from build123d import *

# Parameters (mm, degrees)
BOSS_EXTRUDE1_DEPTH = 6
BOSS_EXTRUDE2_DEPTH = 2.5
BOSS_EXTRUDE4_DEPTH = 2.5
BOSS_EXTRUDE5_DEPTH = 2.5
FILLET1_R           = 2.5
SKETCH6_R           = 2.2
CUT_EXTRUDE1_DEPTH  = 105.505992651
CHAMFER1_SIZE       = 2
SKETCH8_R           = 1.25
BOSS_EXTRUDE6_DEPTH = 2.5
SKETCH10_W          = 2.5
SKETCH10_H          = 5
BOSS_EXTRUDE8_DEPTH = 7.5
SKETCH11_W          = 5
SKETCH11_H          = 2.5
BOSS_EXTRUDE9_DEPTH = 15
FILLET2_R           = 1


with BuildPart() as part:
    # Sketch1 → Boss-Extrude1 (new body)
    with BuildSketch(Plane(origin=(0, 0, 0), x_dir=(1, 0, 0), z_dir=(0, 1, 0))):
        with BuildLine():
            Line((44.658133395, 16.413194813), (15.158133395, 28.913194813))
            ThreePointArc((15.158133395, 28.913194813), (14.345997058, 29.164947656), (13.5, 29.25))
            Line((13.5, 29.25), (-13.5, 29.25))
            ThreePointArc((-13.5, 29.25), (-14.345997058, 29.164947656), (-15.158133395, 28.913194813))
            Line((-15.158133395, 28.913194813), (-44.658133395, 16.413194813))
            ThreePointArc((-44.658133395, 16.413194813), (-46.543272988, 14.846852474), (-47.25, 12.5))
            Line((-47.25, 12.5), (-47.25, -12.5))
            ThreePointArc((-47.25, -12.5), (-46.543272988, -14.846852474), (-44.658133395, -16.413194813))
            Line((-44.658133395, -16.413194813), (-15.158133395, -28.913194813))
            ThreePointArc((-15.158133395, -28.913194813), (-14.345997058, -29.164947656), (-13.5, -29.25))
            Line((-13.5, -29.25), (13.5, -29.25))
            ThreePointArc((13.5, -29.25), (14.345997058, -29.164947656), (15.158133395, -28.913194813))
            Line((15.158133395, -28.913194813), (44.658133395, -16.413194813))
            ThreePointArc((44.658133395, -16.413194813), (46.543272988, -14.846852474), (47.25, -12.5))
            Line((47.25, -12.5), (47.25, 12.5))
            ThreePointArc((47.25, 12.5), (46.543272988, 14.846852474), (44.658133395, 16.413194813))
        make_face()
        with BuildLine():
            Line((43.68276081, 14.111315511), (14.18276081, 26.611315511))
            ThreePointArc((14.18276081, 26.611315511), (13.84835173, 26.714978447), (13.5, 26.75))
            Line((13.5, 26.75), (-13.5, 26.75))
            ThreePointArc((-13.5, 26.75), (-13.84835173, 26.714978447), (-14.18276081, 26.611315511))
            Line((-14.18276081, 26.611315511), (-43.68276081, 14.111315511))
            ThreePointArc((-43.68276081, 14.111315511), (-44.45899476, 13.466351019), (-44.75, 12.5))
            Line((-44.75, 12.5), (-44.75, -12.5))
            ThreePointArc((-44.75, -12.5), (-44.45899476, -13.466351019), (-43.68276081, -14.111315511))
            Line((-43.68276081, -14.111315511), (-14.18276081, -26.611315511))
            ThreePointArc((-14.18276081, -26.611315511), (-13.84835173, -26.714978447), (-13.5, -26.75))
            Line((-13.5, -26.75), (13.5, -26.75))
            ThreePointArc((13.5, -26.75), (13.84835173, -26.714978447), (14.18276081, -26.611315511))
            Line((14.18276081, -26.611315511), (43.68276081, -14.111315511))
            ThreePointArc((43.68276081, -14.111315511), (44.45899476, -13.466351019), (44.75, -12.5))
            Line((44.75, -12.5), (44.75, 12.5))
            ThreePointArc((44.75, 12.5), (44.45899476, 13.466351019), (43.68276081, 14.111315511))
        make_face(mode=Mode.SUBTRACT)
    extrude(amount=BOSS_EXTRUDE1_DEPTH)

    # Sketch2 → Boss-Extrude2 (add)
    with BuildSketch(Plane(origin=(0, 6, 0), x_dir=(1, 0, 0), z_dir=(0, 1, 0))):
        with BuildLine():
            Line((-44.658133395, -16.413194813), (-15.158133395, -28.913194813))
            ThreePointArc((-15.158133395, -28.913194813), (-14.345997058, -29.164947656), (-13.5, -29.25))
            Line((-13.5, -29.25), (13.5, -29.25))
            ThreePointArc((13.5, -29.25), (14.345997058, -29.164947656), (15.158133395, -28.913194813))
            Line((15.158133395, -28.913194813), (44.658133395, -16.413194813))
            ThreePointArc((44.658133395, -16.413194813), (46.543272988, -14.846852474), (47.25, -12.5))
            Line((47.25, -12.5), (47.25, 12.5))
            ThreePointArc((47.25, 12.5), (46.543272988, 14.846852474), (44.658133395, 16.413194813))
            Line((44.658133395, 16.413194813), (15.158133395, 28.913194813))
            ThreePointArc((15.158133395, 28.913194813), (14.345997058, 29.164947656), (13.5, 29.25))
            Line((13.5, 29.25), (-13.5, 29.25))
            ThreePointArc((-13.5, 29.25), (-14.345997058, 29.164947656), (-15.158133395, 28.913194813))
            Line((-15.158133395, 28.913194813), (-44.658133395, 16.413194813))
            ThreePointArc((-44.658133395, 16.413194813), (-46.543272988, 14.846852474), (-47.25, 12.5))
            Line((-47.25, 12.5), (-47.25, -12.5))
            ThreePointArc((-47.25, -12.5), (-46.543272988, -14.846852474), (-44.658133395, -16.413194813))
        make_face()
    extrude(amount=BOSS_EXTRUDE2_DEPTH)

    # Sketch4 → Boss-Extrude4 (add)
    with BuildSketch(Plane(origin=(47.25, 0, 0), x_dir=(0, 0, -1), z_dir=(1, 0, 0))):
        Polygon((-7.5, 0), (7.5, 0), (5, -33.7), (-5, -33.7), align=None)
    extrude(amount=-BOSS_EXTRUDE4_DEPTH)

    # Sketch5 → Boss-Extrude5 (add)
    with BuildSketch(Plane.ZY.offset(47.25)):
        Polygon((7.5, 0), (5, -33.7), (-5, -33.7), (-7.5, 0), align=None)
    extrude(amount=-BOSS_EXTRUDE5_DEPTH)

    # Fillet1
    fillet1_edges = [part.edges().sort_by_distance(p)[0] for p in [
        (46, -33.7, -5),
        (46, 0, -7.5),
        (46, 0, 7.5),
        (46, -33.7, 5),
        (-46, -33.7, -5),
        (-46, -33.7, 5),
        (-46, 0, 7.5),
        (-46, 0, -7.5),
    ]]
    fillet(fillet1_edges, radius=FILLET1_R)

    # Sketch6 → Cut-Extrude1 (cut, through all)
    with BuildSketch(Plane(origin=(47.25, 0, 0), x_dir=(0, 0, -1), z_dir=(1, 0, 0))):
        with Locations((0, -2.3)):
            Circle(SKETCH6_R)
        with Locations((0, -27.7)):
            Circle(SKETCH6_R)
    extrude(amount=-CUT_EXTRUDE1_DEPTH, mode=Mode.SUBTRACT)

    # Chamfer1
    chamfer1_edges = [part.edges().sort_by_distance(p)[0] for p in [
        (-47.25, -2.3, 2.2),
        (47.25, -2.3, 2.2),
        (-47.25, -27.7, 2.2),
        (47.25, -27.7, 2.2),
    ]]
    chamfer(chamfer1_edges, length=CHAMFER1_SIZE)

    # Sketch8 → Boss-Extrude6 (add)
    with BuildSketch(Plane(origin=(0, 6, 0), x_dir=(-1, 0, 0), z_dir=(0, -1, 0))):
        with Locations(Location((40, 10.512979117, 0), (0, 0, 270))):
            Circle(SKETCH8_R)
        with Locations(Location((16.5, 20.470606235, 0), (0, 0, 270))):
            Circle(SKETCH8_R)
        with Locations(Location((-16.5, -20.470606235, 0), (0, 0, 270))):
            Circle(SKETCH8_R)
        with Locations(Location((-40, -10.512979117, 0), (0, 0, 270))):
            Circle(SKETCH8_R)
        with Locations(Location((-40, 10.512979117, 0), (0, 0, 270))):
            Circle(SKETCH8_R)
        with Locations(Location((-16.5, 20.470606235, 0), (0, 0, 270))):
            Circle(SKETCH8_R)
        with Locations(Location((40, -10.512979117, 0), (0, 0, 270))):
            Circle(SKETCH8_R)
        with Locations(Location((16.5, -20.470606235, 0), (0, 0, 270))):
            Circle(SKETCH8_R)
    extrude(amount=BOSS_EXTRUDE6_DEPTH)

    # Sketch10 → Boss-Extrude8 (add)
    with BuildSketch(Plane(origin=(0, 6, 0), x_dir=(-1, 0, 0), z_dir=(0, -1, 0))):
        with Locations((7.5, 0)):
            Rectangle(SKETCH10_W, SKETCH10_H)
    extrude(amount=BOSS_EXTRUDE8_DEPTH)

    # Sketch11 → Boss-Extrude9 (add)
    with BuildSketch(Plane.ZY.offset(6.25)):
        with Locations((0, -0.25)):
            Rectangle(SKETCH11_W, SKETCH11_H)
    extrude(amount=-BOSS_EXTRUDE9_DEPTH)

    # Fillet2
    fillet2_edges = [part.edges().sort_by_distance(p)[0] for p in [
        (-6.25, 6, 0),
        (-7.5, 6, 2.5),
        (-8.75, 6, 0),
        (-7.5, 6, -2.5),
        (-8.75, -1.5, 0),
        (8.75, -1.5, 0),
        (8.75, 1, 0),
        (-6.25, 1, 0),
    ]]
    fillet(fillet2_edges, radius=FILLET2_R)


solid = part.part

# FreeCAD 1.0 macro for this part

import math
import FreeCAD as App
import Part
import Sketcher
from FreeCAD import Vector
Q = App.Units.Quantity


def edges_at(feature, points):
    """Names of the edges that pass closest to the given points."""
    edges = feature.Shape.Edges
    near = lambda p: min(range(len(edges)), key=lambda i: edges[i].distToShape(Part.Vertex(*p))[0])
    return sorted({f"Edge{near(p) + 1}" for p in points})


def add_polygon(sketch, points):
    """Adds a closed chain of lines whose ends are joined by coincident constraints."""
    first, n = sketch.GeometryCount, len(points)
    for a, b in zip(points, points[1:] + points[:1]):
        sketch.addGeometry(Part.LineSegment(App.Vector(*a, 0), App.Vector(*b, 0)), False)
    for i in range(n):
        sketch.addConstraint(Sketcher.Constraint("Coincident", first + i, 2, first + (i + 1) % n, 1))

doc = App.newDocument("Part")
params = doc.addObject("Spreadsheet::Sheet", "Params")
for row, (alias, value) in enumerate([
    ("sketch1_width", "27 mm"),
    ("sketch1_height", "25 mm"),
    ("sketch1_radius", "4.25 mm"),
    ("sketch1_radius2", "1.75 mm"),
    ("pad1_length", "6 mm"),
    ("sketch2_width", "27 mm"),
    ("sketch2_height", "25 mm"),
    ("sketch2_radius", "4.25 mm"),
    ("pad2_length", "2.5 mm"),
    ("sketch3_height", "15 mm"),
    ("sketch3_height2", "10 mm"),
    ("pad3_length", "2.5 mm"),
    ("sketch4_height", "15 mm"),
    ("sketch4_height2", "10 mm"),
    ("pad4_length", "2.5 mm"),
    ("fillet_radius", "2.5 mm"),
    ("sketch5_diameter", "4.4 mm"),
    ("chamfer_size", "2 mm"),
    ("sketch6_diameter", "2.5 mm"),
    ("pad5_length", "2.5 mm"),
    ("sketch7_height", "5 mm"),
    ("sketch7_width", "2.5 mm"),
    ("pad6_length", "7.5 mm"),
    ("sketch8_height", "5 mm"),
    ("sketch8_width", "2.5 mm"),
    ("pad7_length", "15 mm"),
    ("fillet2_radius", "1 mm"),
], start=1):
    params.set(f"A{row}", alias)
    params.set(f"B{row}", "=" + value)
    params.setAlias(f"B{row}", alias)

body = doc.addObject("PartDesign::Body", "Body")

sketch1 = body.newObject("Sketcher::SketchObject", "Sketch")
sketch1.AttachmentSupport = (doc.getObject("XZ_Plane"), [""])
sketch1.MapMode = "FlatFace"
sketch1.addGeometry([
    Part.LineSegment(Vector(44.658133, -16.413195, 0), Vector(15.158133, -28.913195, 0)),
    Part.ArcOfCircle(Part.Circle(Vector(13.5, -25, 0), Vector(0, 0, 1), 4.25), math.radians(-90), math.radians(-67.036227)),
    Part.LineSegment(Vector(13.5, -29.25, 0), Vector(-13.5, -29.25, 0)),
    Part.ArcOfCircle(Part.Circle(Vector(-13.5, -25, 0), Vector(0, 0, 1), 4.25), math.radians(-112.963773), math.radians(-90)),
    Part.LineSegment(Vector(-15.158133, -28.913195, 0), Vector(-44.658133, -16.413195, 0)),
    Part.ArcOfCircle(Part.Circle(Vector(-43, -12.5, 0), Vector(0, 0, 1), 4.25), math.radians(180), math.radians(247.036227)),
    Part.LineSegment(Vector(-47.25, -12.5, 0), Vector(-47.25, 12.5, 0)),
    Part.ArcOfCircle(Part.Circle(Vector(-43, 12.5, 0), Vector(0, 0, 1), 4.25), math.radians(112.963773), math.radians(180)),
    Part.LineSegment(Vector(-44.658133, 16.413195, 0), Vector(-15.158133, 28.913195, 0)),
    Part.ArcOfCircle(Part.Circle(Vector(-13.5, 25, 0), Vector(0, 0, 1), 4.25), math.radians(90), math.radians(112.963773)),
    Part.LineSegment(Vector(-13.5, 29.25, 0), Vector(13.5, 29.25, 0)),
    Part.ArcOfCircle(Part.Circle(Vector(13.5, 25, 0), Vector(0, 0, 1), 4.25), math.radians(67.036227), math.radians(90)),
    Part.LineSegment(Vector(15.158133, 28.913195, 0), Vector(44.658133, 16.413195, 0)),
    Part.ArcOfCircle(Part.Circle(Vector(43, 12.5, 0), Vector(0, 0, 1), 4.25), math.radians(0), math.radians(67.036227)),
    Part.LineSegment(Vector(47.25, 12.5, 0), Vector(47.25, -12.5, 0)),
    Part.ArcOfCircle(Part.Circle(Vector(43, -12.5, 0), Vector(0, 0, 1), 4.25), math.radians(-67.036227), math.radians(0)),
    Part.LineSegment(Vector(14.182761, -26.611316, 0), Vector(43.682761, -14.111316, 0)),
    Part.ArcOfCircle(Part.Circle(Vector(43, -12.5, 0), Vector(0, 0, 1), 1.75), math.radians(-67.036227), math.radians(0)),
    Part.LineSegment(Vector(44.75, -12.5, 0), Vector(44.75, 12.5, 0)),
    Part.ArcOfCircle(Part.Circle(Vector(43, 12.5, 0), Vector(0, 0, 1), 1.75), math.radians(0), math.radians(67.036227)),
    Part.LineSegment(Vector(43.682761, 14.111316, 0), Vector(14.182761, 26.611316, 0)),
    Part.ArcOfCircle(Part.Circle(Vector(13.5, 25, 0), Vector(0, 0, 1), 1.75), math.radians(67.036227), math.radians(90)),
    Part.LineSegment(Vector(13.5, 26.75, 0), Vector(-13.5, 26.75, 0)),
    Part.ArcOfCircle(Part.Circle(Vector(-13.5, 25, 0), Vector(0, 0, 1), 1.75), math.radians(90), math.radians(112.963773)),
    Part.LineSegment(Vector(-14.182761, 26.611316, 0), Vector(-43.682761, 14.111316, 0)),
    Part.ArcOfCircle(Part.Circle(Vector(-43, 12.5, 0), Vector(0, 0, 1), 1.75), math.radians(112.963773), math.radians(180)),
    Part.LineSegment(Vector(-44.75, 12.5, 0), Vector(-44.75, -12.5, 0)),
    Part.ArcOfCircle(Part.Circle(Vector(-43, -12.5, 0), Vector(0, 0, 1), 1.75), math.radians(180), math.radians(247.036227)),
    Part.LineSegment(Vector(-43.682761, -14.111316, 0), Vector(-14.182761, -26.611316, 0)),
    Part.ArcOfCircle(Part.Circle(Vector(-13.5, -25, 0), Vector(0, 0, 1), 1.75), math.radians(-112.963773), math.radians(-90)),
    Part.LineSegment(Vector(-13.5, -26.75, 0), Vector(13.5, -26.75, 0)),
    Part.ArcOfCircle(Part.Circle(Vector(13.5, -25, 0), Vector(0, 0, 1), 1.75), math.radians(-90), math.radians(-67.036227)),
], False)
sketch1.addConstraint([
    Sketcher.Constraint("Tangent", 0, 2, 1, 2),
    Sketcher.Constraint("Tangent", 1, 1, 2, 1),
    Sketcher.Constraint("Tangent", 2, 2, 3, 2),
    Sketcher.Constraint("Tangent", 3, 1, 4, 1),
    Sketcher.Constraint("Tangent", 4, 2, 5, 2),
    Sketcher.Constraint("Tangent", 5, 1, 6, 1),
    Sketcher.Constraint("Tangent", 6, 2, 7, 2),
    Sketcher.Constraint("Tangent", 7, 1, 8, 1),
    Sketcher.Constraint("Tangent", 8, 2, 9, 2),
    Sketcher.Constraint("Tangent", 9, 1, 10, 1),
    Sketcher.Constraint("Tangent", 10, 2, 11, 2),
    Sketcher.Constraint("Tangent", 11, 1, 12, 1),
    Sketcher.Constraint("Tangent", 12, 2, 13, 2),
    Sketcher.Constraint("Tangent", 13, 1, 14, 1),
    Sketcher.Constraint("Tangent", 14, 2, 15, 2),
    Sketcher.Constraint("Tangent", 15, 1, 0, 1),
    Sketcher.Constraint("Tangent", 16, 2, 17, 1),
    Sketcher.Constraint("Tangent", 17, 2, 18, 1),
    Sketcher.Constraint("Tangent", 18, 2, 19, 1),
    Sketcher.Constraint("Tangent", 19, 2, 20, 1),
    Sketcher.Constraint("Tangent", 20, 2, 21, 1),
    Sketcher.Constraint("Tangent", 21, 2, 22, 1),
    Sketcher.Constraint("Tangent", 22, 2, 23, 1),
    Sketcher.Constraint("Tangent", 23, 2, 24, 1),
    Sketcher.Constraint("Tangent", 24, 2, 25, 1),
    Sketcher.Constraint("Tangent", 25, 2, 26, 1),
    Sketcher.Constraint("Tangent", 26, 2, 27, 1),
    Sketcher.Constraint("Tangent", 27, 2, 28, 1),
    Sketcher.Constraint("Tangent", 28, 2, 29, 1),
    Sketcher.Constraint("Tangent", 29, 2, 30, 1),
    Sketcher.Constraint("Tangent", 30, 2, 31, 1),
    Sketcher.Constraint("Tangent", 31, 2, 16, 1),
    Sketcher.Constraint("Horizontal", 2),
    Sketcher.Constraint("Vertical", 6),
    Sketcher.Constraint("Horizontal", 10),
    Sketcher.Constraint("Vertical", 14),
    Sketcher.Constraint("Vertical", 18),
    Sketcher.Constraint("Horizontal", 22),
    Sketcher.Constraint("Vertical", 26),
    Sketcher.Constraint("Horizontal", 30),
    Sketcher.Constraint("Coincident", 17, 3, 15, 3),
    Sketcher.Constraint("Coincident", 19, 3, 13, 3),
    Sketcher.Constraint("Coincident", 21, 3, 11, 3),
    Sketcher.Constraint("Coincident", 23, 3, 9, 3),
    Sketcher.Constraint("Coincident", 25, 3, 7, 3),
    Sketcher.Constraint("Coincident", 27, 3, 5, 3),
    Sketcher.Constraint("Coincident", 29, 3, 3, 3),
    Sketcher.Constraint("Coincident", 31, 3, 1, 3),
    Sketcher.Constraint("Equal", 1, 3),
    Sketcher.Constraint("Equal", 3, 5),
    Sketcher.Constraint("Equal", 5, 7),
    Sketcher.Constraint("Equal", 7, 9),
    Sketcher.Constraint("Equal", 9, 11),
    Sketcher.Constraint("Equal", 11, 13),
    Sketcher.Constraint("Equal", 13, 15),
    Sketcher.Constraint("Equal", 19, 21),
    Sketcher.Constraint("Equal", 23, 25),
    Sketcher.Constraint("Equal", 27, 29),
    Sketcher.Constraint("Symmetric", 1, 3, 9, 3, -1, 1),
    Sketcher.Constraint("Symmetric", 5, 3, 13, 3, -1, 1),
    Sketcher.Constraint("Symmetric", 0, 2, 3, 1, -2),
    Sketcher.Constraint("Symmetric", 8, 2, 11, 1, -2),
    Sketcher.Constraint("DistanceX", 2, 2, 2, 1, Q("27 mm")),
    Sketcher.Constraint("DistanceY", 6, 1, 6, 2, Q("25 mm")),
    Sketcher.Constraint("Radius", 1, Q("4.25 mm")),
    Sketcher.Constraint("Radius", 17, Q("1.75 mm")),
    Sketcher.Constraint("DistanceY", 1, 3, -1, 1, Q("25 mm")),
    Sketcher.Constraint("DistanceX", 5, 3, -1, 1, Q("43 mm")),
])
sketch1.setExpression("Constraints[62]", "Params.sketch1_width")
sketch1.setExpression("Constraints[63]", "Params.sketch1_height")
sketch1.setExpression("Constraints[64]", "Params.sketch1_radius")
sketch1.setExpression("Constraints[65]", "Params.sketch1_radius2")
pad1 = body.newObject("PartDesign::Pad", "Pad")
pad1.Profile = sketch1
pad1.setExpression("Length", "Params.pad1_length")
pad1.Reversed = True

sketch2 = body.newObject("Sketcher::SketchObject", "Sketch001")
sketch2.AttachmentSupport = (doc.getObject("XZ_Plane"), [""])
sketch2.MapMode = "FlatFace"
sketch2.AttachmentOffset = App.Placement(Vector(0, 0, -6), App.Rotation())
sketch2.addGeometry([
    Part.LineSegment(Vector(-44.658133, 16.413195, 0), Vector(-15.158133, 28.913195, 0)),
    Part.ArcOfCircle(Part.Circle(Vector(-13.5, 25, 0), Vector(0, 0, 1), 4.25), math.radians(90), math.radians(112.963773)),
    Part.LineSegment(Vector(-13.5, 29.25, 0), Vector(13.5, 29.25, 0)),
    Part.ArcOfCircle(Part.Circle(Vector(13.5, 25, 0), Vector(0, 0, 1), 4.25), math.radians(67.036227), math.radians(90)),
    Part.LineSegment(Vector(15.158133, 28.913195, 0), Vector(44.658133, 16.413195, 0)),
    Part.ArcOfCircle(Part.Circle(Vector(43, 12.5, 0), Vector(0, 0, 1), 4.25), math.radians(0), math.radians(67.036227)),
    Part.LineSegment(Vector(47.25, 12.5, 0), Vector(47.25, -12.5, 0)),
    Part.ArcOfCircle(Part.Circle(Vector(43, -12.5, 0), Vector(0, 0, 1), 4.25), math.radians(-67.036227), math.radians(0)),
    Part.LineSegment(Vector(44.658133, -16.413195, 0), Vector(15.158133, -28.913195, 0)),
    Part.ArcOfCircle(Part.Circle(Vector(13.5, -25, 0), Vector(0, 0, 1), 4.25), math.radians(-90), math.radians(-67.036227)),
    Part.LineSegment(Vector(13.5, -29.25, 0), Vector(-13.5, -29.25, 0)),
    Part.ArcOfCircle(Part.Circle(Vector(-13.5, -25, 0), Vector(0, 0, 1), 4.25), math.radians(-112.963773), math.radians(-90)),
    Part.LineSegment(Vector(-15.158133, -28.913195, 0), Vector(-44.658133, -16.413195, 0)),
    Part.ArcOfCircle(Part.Circle(Vector(-43, -12.5, 0), Vector(0, 0, 1), 4.25), math.radians(180), math.radians(247.036227)),
    Part.LineSegment(Vector(-47.25, -12.5, 0), Vector(-47.25, 12.5, 0)),
    Part.ArcOfCircle(Part.Circle(Vector(-43, 12.5, 0), Vector(0, 0, 1), 4.25), math.radians(112.963773), math.radians(180)),
], False)
sketch2.addConstraint([
    Sketcher.Constraint("Tangent", 0, 2, 1, 2),
    Sketcher.Constraint("Tangent", 1, 1, 2, 1),
    Sketcher.Constraint("Tangent", 2, 2, 3, 2),
    Sketcher.Constraint("Tangent", 3, 1, 4, 1),
    Sketcher.Constraint("Tangent", 4, 2, 5, 2),
    Sketcher.Constraint("Tangent", 5, 1, 6, 1),
    Sketcher.Constraint("Tangent", 6, 2, 7, 2),
    Sketcher.Constraint("Tangent", 7, 1, 8, 1),
    Sketcher.Constraint("Tangent", 8, 2, 9, 2),
    Sketcher.Constraint("Tangent", 9, 1, 10, 1),
    Sketcher.Constraint("Tangent", 10, 2, 11, 2),
    Sketcher.Constraint("Tangent", 11, 1, 12, 1),
    Sketcher.Constraint("Tangent", 12, 2, 13, 2),
    Sketcher.Constraint("Tangent", 13, 1, 14, 1),
    Sketcher.Constraint("Tangent", 14, 2, 15, 2),
    Sketcher.Constraint("Tangent", 15, 1, 0, 1),
    Sketcher.Constraint("Horizontal", 2),
    Sketcher.Constraint("Vertical", 6),
    Sketcher.Constraint("Horizontal", 10),
    Sketcher.Constraint("Vertical", 14),
    Sketcher.Constraint("Equal", 1, 3),
    Sketcher.Constraint("Equal", 3, 5),
    Sketcher.Constraint("Equal", 5, 7),
    Sketcher.Constraint("Equal", 7, 9),
    Sketcher.Constraint("Equal", 9, 11),
    Sketcher.Constraint("Equal", 11, 13),
    Sketcher.Constraint("Equal", 13, 15),
    Sketcher.Constraint("Symmetric", 1, 3, 9, 3, -1, 1),
    Sketcher.Constraint("Symmetric", 5, 3, 13, 3, -1, 1),
    Sketcher.Constraint("Symmetric", 0, 2, 3, 1, -2),
    Sketcher.Constraint("Symmetric", 8, 2, 11, 1, -2),
    Sketcher.Constraint("DistanceX", 2, 1, 2, 2, Q("27 mm")),
    Sketcher.Constraint("DistanceY", 6, 2, 6, 1, Q("25 mm")),
    Sketcher.Constraint("Radius", 1, Q("4.25 mm")),
    Sketcher.Constraint("DistanceY", -1, 1, 1, 3, Q("25 mm")),
    Sketcher.Constraint("DistanceX", -1, 1, 5, 3, Q("43 mm")),
])
sketch2.setExpression("Constraints[31]", "Params.sketch2_width")
sketch2.setExpression("Constraints[32]", "Params.sketch2_height")
sketch2.setExpression("Constraints[33]", "Params.sketch2_radius")
pad2 = body.newObject("PartDesign::Pad", "Pad001")
pad2.Profile = sketch2
pad2.setExpression("Length", "Params.pad2_length")
pad2.Reversed = True

sketch3 = body.newObject("Sketcher::SketchObject", "Sketch002")
sketch3.AttachmentSupport = (doc.getObject("YZ_Plane"), [""])
sketch3.MapMode = "FlatFace"
sketch3.AttachmentOffset = App.Placement(Vector(0, 0, 47.25), App.Rotation())
add_polygon(sketch3, [(0, -7.5), (0, 7.5), (-33.7, 5), (-33.7, -5)])
sketch3.addConstraint([
    Sketcher.Constraint("Vertical", 0),
    Sketcher.Constraint("Vertical", 2),
    Sketcher.Constraint("Symmetric", 0, 2, 3, 2, -1, 1),
    Sketcher.Constraint("Equal", 1, 3),
    Sketcher.Constraint("DistanceY", 0, 1, 0, 2, Q("15 mm")),
    Sketcher.Constraint("DistanceY", 2, 2, 2, 1, Q("10 mm")),
    Sketcher.Constraint("DistanceX", 1, 2, -1, 1, Q("33.7 mm")),
])
sketch3.setExpression("Constraints[8]", "Params.sketch3_height")
sketch3.setExpression("Constraints[9]", "Params.sketch3_height2")
pad3 = body.newObject("PartDesign::Pad", "Pad002")
pad3.Profile = sketch3
pad3.setExpression("Length", "Params.pad3_length")
pad3.Reversed = True

sketch4 = body.newObject("Sketcher::SketchObject", "Sketch003")
sketch4.AttachmentSupport = (doc.getObject("YZ_Plane"), [""])
sketch4.MapMode = "FlatFace"
sketch4.AttachmentOffset = App.Placement(Vector(0, 0, -47.25), App.Rotation())
add_polygon(sketch4, [(-33.7, 5), (0, 7.5), (0, -7.5), (-33.7, -5)])
sketch4.addConstraint([
    Sketcher.Constraint("Vertical", 1),
    Sketcher.Constraint("Vertical", 3),
    Sketcher.Constraint("Symmetric", 0, 2, 1, 2, -1, 1),
    Sketcher.Constraint("Equal", 0, 2),
    Sketcher.Constraint("DistanceY", 1, 2, 1, 1, Q("15 mm")),
    Sketcher.Constraint("DistanceY", 3, 1, 3, 2, Q("10 mm")),
    Sketcher.Constraint("DistanceX", 2, 2, -1, 1, Q("33.7 mm")),
])
sketch4.setExpression("Constraints[8]", "Params.sketch4_height")
sketch4.setExpression("Constraints[9]", "Params.sketch4_height2")
pad4 = body.newObject("PartDesign::Pad", "Pad003")
pad4.Profile = sketch4
pad4.setExpression("Length", "Params.pad4_length")
doc.recompute()

fillet = body.newObject("PartDesign::Fillet", "Fillet")
fillet.Base = (pad4, edges_at(pad4, [
    (46, -33.7, -5),
    (46, 0, -7.5),
    (46, 0, 7.5),
    (46, -33.7, 5),
    (-46, -33.7, -5),
    (-46, -33.7, 5),
    (-46, 0, 7.5),
    (-46, 0, -7.5),
]))
fillet.setExpression("Radius", "Params.fillet_radius")

sketch5 = body.newObject("Sketcher::SketchObject", "Sketch004")
sketch5.AttachmentSupport = (doc.getObject("YZ_Plane"), [""])
sketch5.MapMode = "FlatFace"
sketch5.AttachmentOffset = App.Placement(Vector(0, 0, 47.25), App.Rotation())
sketch5.addGeometry([
    Part.Circle(Vector(-2.3, 0, 0), Vector(0, 0, 1), 2.2),
    Part.Circle(Vector(-27.7, 0, 0), Vector(0, 0, 1), 2.2),
], False)
sketch5.addConstraint([
    Sketcher.Constraint("Equal", 0, 1),
    Sketcher.Constraint("PointOnObject", 0, 3, -1),
    Sketcher.Constraint("PointOnObject", 1, 3, -1),
    Sketcher.Constraint("Diameter", 0, Q("4.4 mm")),
    Sketcher.Constraint("DistanceX", 0, 3, -1, 1, Q("2.3 mm")),
    Sketcher.Constraint("DistanceX", 1, 3, -1, 1, Q("27.7 mm")),
])
sketch5.setExpression("Constraints[3]", "Params.sketch5_diameter")
pocket1 = body.newObject("PartDesign::Pocket", "Pocket")
pocket1.Profile = sketch5
pocket1.Type = "ThroughAll"
doc.recompute()

chamfer = body.newObject("PartDesign::Chamfer", "Chamfer")
chamfer.Base = (pocket1, edges_at(pocket1, [
    (-47.25, -2.3, 2.2),
    (47.25, -2.3, 2.2),
    (-47.25, -27.7, 2.2),
    (47.25, -27.7, 2.2),
]))
chamfer.setExpression("Size", "Params.chamfer_size")

sketch6 = body.newObject("Sketcher::SketchObject", "Sketch005")
sketch6.AttachmentSupport = (doc.getObject("XZ_Plane"), [""])
sketch6.MapMode = "FlatFace"
sketch6.AttachmentOffset = App.Placement(Vector(0, 0, -6), App.Rotation())
sketch6.addGeometry([
    Part.Circle(Vector(-40, -10.512979, 0), Vector(0, 0, 1), 1.25),
    Part.Circle(Vector(-16.5, -20.470606, 0), Vector(0, 0, 1), 1.25),
    Part.Circle(Vector(16.5, 20.470606, 0), Vector(0, 0, 1), 1.25),
    Part.Circle(Vector(40, 10.512979, 0), Vector(0, 0, 1), 1.25),
    Part.Circle(Vector(40, -10.512979, 0), Vector(0, 0, 1), 1.25),
    Part.Circle(Vector(16.5, -20.470606, 0), Vector(0, 0, 1), 1.25),
    Part.Circle(Vector(-40, 10.512979, 0), Vector(0, 0, 1), 1.25),
    Part.Circle(Vector(-16.5, 20.470606, 0), Vector(0, 0, 1), 1.25),
], False)
sketch6.addConstraint([
    Sketcher.Constraint("Equal", 0, 1),
    Sketcher.Constraint("Equal", 1, 2),
    Sketcher.Constraint("Equal", 2, 3),
    Sketcher.Constraint("Equal", 3, 4),
    Sketcher.Constraint("Equal", 4, 5),
    Sketcher.Constraint("Equal", 5, 6),
    Sketcher.Constraint("Equal", 6, 7),
    Sketcher.Constraint("Symmetric", 1, 3, 2, 3, -1, 1),
    Sketcher.Constraint("Symmetric", 0, 3, 3, 3, -1, 1),
    Sketcher.Constraint("Symmetric", 4, 3, 6, 3, -1, 1),
    Sketcher.Constraint("Symmetric", 5, 3, 7, 3, -1, 1),
    Sketcher.Constraint("Symmetric", 0, 3, 4, 3, -2),
    Sketcher.Constraint("Symmetric", 1, 3, 5, 3, -2),
    Sketcher.Constraint("Diameter", 0, Q("2.5 mm")),
    Sketcher.Constraint("DistanceX", 0, 3, -1, 1, Q("40 mm")),
    Sketcher.Constraint("DistanceX", 1, 3, 2, 3, Q("33 mm")),
    Sketcher.Constraint("DistanceY", 0, 3, -1, 1, Q("10.512979 mm")),
    Sketcher.Constraint("DistanceY", 1, 3, -1, 1, Q("20.470606 mm")),
])
sketch6.setExpression("Constraints[13]", "Params.sketch6_diameter")
pad5 = body.newObject("PartDesign::Pad", "Pad004")
pad5.Profile = sketch6
pad5.setExpression("Length", "Params.pad5_length")

sketch7 = body.newObject("Sketcher::SketchObject", "Sketch006")
sketch7.AttachmentSupport = (doc.getObject("XZ_Plane"), [""])
sketch7.MapMode = "FlatFace"
sketch7.AttachmentOffset = App.Placement(Vector(0, 0, -6), App.Rotation())
add_polygon(sketch7, [(-6.25, -2.5), (-6.25, 2.5), (-8.75, 2.5), (-8.75, -2.5)])
sketch7.addConstraint([
    Sketcher.Constraint("Vertical", 0),
    Sketcher.Constraint("Horizontal", 1),
    Sketcher.Constraint("Vertical", 2),
    Sketcher.Constraint("Horizontal", 3),
    Sketcher.Constraint("DistanceY", 0, 1, 0, 2, Q("5 mm")),
    Sketcher.Constraint("DistanceX", 1, 2, 1, 1, Q("2.5 mm")),
    Sketcher.Constraint("DistanceY", -1, 1, 0, 2, Q("2.5 mm")),
    Sketcher.Constraint("DistanceX", 0, 2, -1, 1, Q("6.25 mm")),
])
sketch7.setExpression("Constraints[8]", "Params.sketch7_height")
sketch7.setExpression("Constraints[9]", "Params.sketch7_width")
pad6 = body.newObject("PartDesign::Pad", "Pad005")
pad6.Profile = sketch7
pad6.setExpression("Length", "Params.pad6_length")

sketch8 = body.newObject("Sketcher::SketchObject", "Sketch007")
sketch8.AttachmentSupport = (doc.getObject("YZ_Plane"), [""])
sketch8.MapMode = "FlatFace"
sketch8.AttachmentOffset = App.Placement(Vector(0, 0, -6.25), App.Rotation())
add_polygon(sketch8, [(1, -2.5), (-1.5, -2.5), (-1.5, 2.5), (1, 2.5)])
sketch8.addConstraint([
    Sketcher.Constraint("Horizontal", 0),
    Sketcher.Constraint("Vertical", 1),
    Sketcher.Constraint("Horizontal", 2),
    Sketcher.Constraint("Vertical", 3),
    Sketcher.Constraint("DistanceY", 1, 1, 1, 2, Q("5 mm")),
    Sketcher.Constraint("DistanceX", 0, 2, 0, 1, Q("2.5 mm")),
    Sketcher.Constraint("DistanceX", -1, 1, 2, 2, Q("1 mm")),
    Sketcher.Constraint("DistanceY", 0, 2, -1, 1, Q("2.5 mm")),
])
sketch8.setExpression("Constraints[8]", "Params.sketch8_height")
sketch8.setExpression("Constraints[9]", "Params.sketch8_width")
pad7 = body.newObject("PartDesign::Pad", "Pad006")
pad7.Profile = sketch8
pad7.setExpression("Length", "Params.pad7_length")
doc.recompute()

fillet2 = body.newObject("PartDesign::Fillet", "Fillet001")
fillet2.Base = (pad7, edges_at(pad7, [
    (-6.25, 6, 0),
    (-7.5, 6, 2.5),
    (-8.75, 6, 0),
    (-7.5, 6, -2.5),
    (-8.75, -1.5, 0),
    (8.75, -1.5, 0),
    (8.75, 1, 0),
    (-6.25, 1, 0),
]))
fillet2.setExpression("Radius", "Params.fillet2_radius")

doc.recompute()
